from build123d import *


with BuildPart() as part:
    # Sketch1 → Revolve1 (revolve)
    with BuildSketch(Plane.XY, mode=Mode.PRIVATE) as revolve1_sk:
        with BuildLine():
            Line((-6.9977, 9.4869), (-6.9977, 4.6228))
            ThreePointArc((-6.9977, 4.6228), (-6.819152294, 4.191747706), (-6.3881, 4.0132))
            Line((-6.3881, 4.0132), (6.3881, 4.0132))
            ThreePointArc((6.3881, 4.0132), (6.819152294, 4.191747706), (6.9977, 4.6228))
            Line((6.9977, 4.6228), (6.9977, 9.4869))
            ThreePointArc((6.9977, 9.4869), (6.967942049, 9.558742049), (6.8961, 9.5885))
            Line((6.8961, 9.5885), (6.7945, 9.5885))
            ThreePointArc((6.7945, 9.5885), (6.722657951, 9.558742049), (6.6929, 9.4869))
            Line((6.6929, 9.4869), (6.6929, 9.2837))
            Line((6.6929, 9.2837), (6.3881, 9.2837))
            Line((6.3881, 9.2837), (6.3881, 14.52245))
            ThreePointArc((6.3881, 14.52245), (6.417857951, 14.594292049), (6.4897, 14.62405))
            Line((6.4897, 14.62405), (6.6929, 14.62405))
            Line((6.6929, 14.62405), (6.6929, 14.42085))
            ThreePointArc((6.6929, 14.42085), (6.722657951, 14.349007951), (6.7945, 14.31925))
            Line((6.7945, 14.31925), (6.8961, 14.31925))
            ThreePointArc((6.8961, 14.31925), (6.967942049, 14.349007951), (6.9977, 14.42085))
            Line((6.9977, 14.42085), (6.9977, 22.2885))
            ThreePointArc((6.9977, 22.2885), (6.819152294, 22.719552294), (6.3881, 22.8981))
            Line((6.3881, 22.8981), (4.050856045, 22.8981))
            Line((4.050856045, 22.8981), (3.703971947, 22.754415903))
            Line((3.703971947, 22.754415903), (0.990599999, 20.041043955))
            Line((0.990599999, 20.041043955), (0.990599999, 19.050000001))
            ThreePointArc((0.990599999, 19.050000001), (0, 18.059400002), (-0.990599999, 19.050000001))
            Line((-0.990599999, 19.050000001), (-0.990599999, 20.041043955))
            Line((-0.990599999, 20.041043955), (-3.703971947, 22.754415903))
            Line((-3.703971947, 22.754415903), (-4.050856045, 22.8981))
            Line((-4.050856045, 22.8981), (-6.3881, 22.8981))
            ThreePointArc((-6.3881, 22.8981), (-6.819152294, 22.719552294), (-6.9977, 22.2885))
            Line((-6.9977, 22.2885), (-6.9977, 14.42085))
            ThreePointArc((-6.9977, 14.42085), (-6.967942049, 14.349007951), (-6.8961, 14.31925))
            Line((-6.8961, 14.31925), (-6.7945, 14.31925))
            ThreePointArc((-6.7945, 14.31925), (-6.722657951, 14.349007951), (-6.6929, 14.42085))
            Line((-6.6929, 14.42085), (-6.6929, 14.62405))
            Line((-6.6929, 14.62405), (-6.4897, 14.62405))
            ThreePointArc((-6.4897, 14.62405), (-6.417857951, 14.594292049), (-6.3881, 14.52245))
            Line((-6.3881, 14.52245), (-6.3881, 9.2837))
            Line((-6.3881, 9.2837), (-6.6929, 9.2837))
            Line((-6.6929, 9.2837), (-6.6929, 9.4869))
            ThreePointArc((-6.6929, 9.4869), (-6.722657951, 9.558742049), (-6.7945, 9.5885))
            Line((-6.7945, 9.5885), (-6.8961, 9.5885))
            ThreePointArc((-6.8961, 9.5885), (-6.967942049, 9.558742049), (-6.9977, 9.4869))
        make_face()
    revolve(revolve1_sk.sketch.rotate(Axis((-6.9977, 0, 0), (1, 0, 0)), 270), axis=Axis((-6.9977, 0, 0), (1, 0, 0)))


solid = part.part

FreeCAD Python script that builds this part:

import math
import FreeCAD as App
import Part
import Sketcher

V = App.Vector
Q = App.Units.Quantity

doc = App.newDocument("Part")
body = doc.addObject("PartDesign::Body", "Body")

# Sketch on XY plane
sketch1 = body.newObject("Sketcher::SketchObject", "Sketch")
sketch1.AttachmentSupport = (doc.getObject("XY_Plane"), [""])
sketch1.MapMode = "FlatFace"
sketch1.addGeometry(Part.LineSegment(V(-7, 9.49, 0), V(-7, 4.62, 0)), False)
sketch1.addGeometry(Part.ArcOfCircle(Part.Circle(V(-6.39, 4.62, 0), V(0, 0, 1), 0.61), math.radians(180), math.radians(270)), False)
sketch1.addGeometry(Part.LineSegment(V(-6.39, 4.01, 0), V(6.39, 4.01, 0)), False)
sketch1.addGeometry(Part.ArcOfCircle(Part.Circle(V(6.39, 4.62, 0), V(0, 0, 1), 0.61), math.radians(-90), math.radians(0)), False)
sketch1.addGeometry(Part.LineSegment(V(7, 4.62, 0), V(7, 9.49, 0)), False)
sketch1.addGeometry(Part.ArcOfCircle(Part.Circle(V(6.9, 9.49, 0), V(0, 0, 1), 0.1), math.radians(0), math.radians(90)), False)
sketch1.addGeometry(Part.LineSegment(V(6.9, 9.59, 0), V(6.79, 9.59, 0)), False)
sketch1.addGeometry(Part.ArcOfCircle(Part.Circle(V(6.79, 9.49, 0), V(0, 0, 1), 0.1), math.radians(90), math.radians(180)), False)
sketch1.addGeometry(Part.LineSegment(V(6.69, 9.49, 0), V(6.69, 9.28, 0)), False)
sketch1.addGeometry(Part.LineSegment(V(6.69, 9.28, 0), V(6.39, 9.28, 0)), False)
sketch1.addGeometry(Part.LineSegment(V(6.39, 9.28, 0), V(6.39, 14.52, 0)), False)
sketch1.addGeometry(Part.ArcOfCircle(Part.Circle(V(6.49, 14.52, 0), V(0, 0, 1), 0.1), math.radians(90), math.radians(180)), False)
sketch1.addGeometry(Part.LineSegment(V(6.49, 14.62, 0), V(6.69, 14.62, 0)), False)
sketch1.addGeometry(Part.LineSegment(V(6.69, 14.62, 0), V(6.69, 14.42, 0)), False)
sketch1.addGeometry(Part.ArcOfCircle(Part.Circle(V(6.79, 14.42, 0), V(0, 0, 1), 0.1), math.radians(180), math.radians(270)), False)
sketch1.addGeometry(Part.LineSegment(V(6.79, 14.32, 0), V(6.9, 14.32, 0)), False)
sketch1.addGeometry(Part.ArcOfCircle(Part.Circle(V(6.9, 14.42, 0), V(0, 0, 1), 0.1), math.radians(-90), math.radians(0)), False)
sketch1.addGeometry(Part.LineSegment(V(7, 14.42, 0), V(7, 22.29, 0)), False)
sketch1.addGeometry(Part.ArcOfCircle(Part.Circle(V(6.39, 22.29, 0), V(0, 0, 1), 0.61), math.radians(0), math.radians(90)), False)
sketch1.addGeometry(Part.LineSegment(V(6.39, 22.9, 0), V(4.05, 22.9, 0)), False)
sketch1.addGeometry(Part.LineSegment(V(4.05, 22.9, 0), V(3.7, 22.75, 0)), False)
sketch1.addGeometry(Part.LineSegment(V(3.7, 22.75, 0), V(0.99, 20.04, 0)), False)
sketch1.addGeometry(Part.LineSegment(V(0.99, 20.04, 0), V(0.99, 19.05, 0)), False)
sketch1.addGeometry(Part.ArcOfCircle(Part.Circle(V(0, 19.05, 0), V(0, 0, 1), 0.99), math.radians(180), math.radians(360)), False)
sketch1.addGeometry(Part.LineSegment(V(-0.99, 19.05, 0), V(-0.99, 20.04, 0)), False)
sketch1.addGeometry(Part.LineSegment(V(-0.99, 20.04, 0), V(-3.7, 22.75, 0)), False)
sketch1.addGeometry(Part.LineSegment(V(-3.7, 22.75, 0), V(-4.05, 22.9, 0)), False)
sketch1.addGeometry(Part.LineSegment(V(-4.05, 22.9, 0), V(-6.39, 22.9, 0)), False)
sketch1.addGeometry(Part.ArcOfCircle(Part.Circle(V(-6.39, 22.29, 0), V(0, 0, 1), 0.61), math.radians(90), math.radians(180)), False)
sketch1.addGeometry(Part.LineSegment(V(-7, 22.29, 0), V(-7, 14.42, 0)), False)
sketch1.addGeometry(Part.ArcOfCircle(Part.Circle(V(-6.9, 14.42, 0), V(0, 0, 1), 0.1), math.radians(180), math.radians(270)), False)
sketch1.addGeometry(Part.LineSegment(V(-6.9, 14.32, 0), V(-6.79, 14.32, 0)), False)
sketch1.addGeometry(Part.ArcOfCircle(Part.Circle(V(-6.79, 14.42, 0), V(0, 0, 1), 0.1), math.radians(-90), math.radians(0)), False)
sketch1.addGeometry(Part.LineSegment(V(-6.69, 14.42, 0), V(-6.69, 14.62, 0)), False)
sketch1.addGeometry(Part.LineSegment(V(-6.69, 14.62, 0), V(-6.49, 14.62, 0)), False)
sketch1.addGeometry(Part.ArcOfCircle(Part.Circle(V(-6.49, 14.52, 0), V(0, 0, 1), 0.1), math.radians(0), math.radians(90)), False)
sketch1.addGeometry(Part.LineSegment(V(-6.39, 14.52, 0), V(-6.39, 9.28, 0)), False)
sketch1.addGeometry(Part.LineSegment(V(-6.39, 9.28, 0), V(-6.69, 9.28, 0)), False)
sketch1.addGeometry(Part.LineSegment(V(-6.69, 9.28, 0), V(-6.69, 9.49, 0)), False)
sketch1.addGeometry(Part.ArcOfCircle(Part.Circle(V(-6.79, 9.49, 0), V(0, 0, 1), 0.1), math.radians(0), math.radians(90)), False)
sketch1.addGeometry(Part.LineSegment(V(-6.79, 9.59, 0), V(-6.9, 9.59, 0)), False)
sketch1.addGeometry(Part.ArcOfCircle(Part.Circle(V(-6.9, 9.49, 0), V(0, 0, 1), 0.1), math.radians(90), math.radians(180)), False)
sketch1.addConstraint(Sketcher.Constraint("Tangent", 0, 2, 1, 1))
sketch1.addConstraint(Sketcher.Constraint("Tangent", 1, 2, 2, 1))
sketch1.addConstraint(Sketcher.Constraint("Tangent", 2, 2, 3, 1))
sketch1.addConstraint(Sketcher.Constraint("Tangent", 3, 2, 4, 1))
sketch1.addConstraint(Sketcher.Constraint("Tangent", 4, 2, 5, 1))
sketch1.addConstraint(Sketcher.Constraint("Tangent", 5, 2, 6, 1))
sketch1.addConstraint(Sketcher.Constraint("Tangent", 6, 2, 7, 1))
sketch1.addConstraint(Sketcher.Constraint("Tangent", 7, 2, 8, 1))
sketch1.addConstraint(Sketcher.Constraint("Coincident", 8, 2, 9, 1))
sketch1.addConstraint(Sketcher.Constraint("Coincident", 9, 2, 10, 1))
sketch1.addConstraint(Sketcher.Constraint("Tangent", 10, 2, 11, 2))
sketch1.addConstraint(Sketcher.Constraint("Tangent", 11, 1, 12, 1))
sketch1.addConstraint(Sketcher.Constraint("Coincident", 12, 2, 13, 1))
sketch1.addConstraint(Sketcher.Constraint("Tangent", 13, 2, 14, 1))
sketch1.addConstraint(Sketcher.Constraint("Tangent", 14, 2, 15, 1))
sketch1.addConstraint(Sketcher.Constraint("Tangent", 15, 2, 16, 1))
sketch1.addConstraint(Sketcher.Constraint("Tangent", 16, 2, 17, 1))
sketch1.addConstraint(Sketcher.Constraint("Tangent", 17, 2, 18, 1))
sketch1.addConstraint(Sketcher.Constraint("Tangent", 18, 2, 19, 1))
sketch1.addConstraint(Sketcher.Constraint("Coincident", 19, 2, 20, 1))
sketch1.addConstraint(Sketcher.Constraint("Coincident", 20, 2, 21, 1))
sketch1.addConstraint(Sketcher.Constraint("Coincident", 21, 2, 22, 1))
sketch1.addConstraint(Sketcher.Constraint("Tangent", 22, 2, 23, 2))
sketch1.addConstraint(Sketcher.Constraint("Tangent", 23, 1, 24, 1))
sketch1.addConstraint(Sketcher.Constraint("Coincident", 24, 2, 25, 1))
sketch1.addConstraint(Sketcher.Constraint("Coincident", 25, 2, 26, 1))
sketch1.addConstraint(Sketcher.Constraint("Coincident", 26, 2, 27, 1))
sketch1.addConstraint(Sketcher.Constraint("Tangent", 27, 2, 28, 1))
sketch1.addConstraint(Sketcher.Constraint("Tangent", 28, 2, 29, 1))
sketch1.addConstraint(Sketcher.Constraint("Tangent", 29, 2, 30, 1))
sketch1.addConstraint(Sketcher.Constraint("Tangent", 30, 2, 31, 1))
sketch1.addConstraint(Sketcher.Constraint("Tangent", 31, 2, 32, 1))
sketch1.addConstraint(Sketcher.Constraint("Tangent", 32, 2, 33, 1))
sketch1.addConstraint(Sketcher.Constraint("Coincident", 33, 2, 34, 1))
sketch1.addConstraint(Sketcher.Constraint("Tangent", 34, 2, 35, 2))
sketch1.addConstraint(Sketcher.Constraint("Tangent", 35, 1, 36, 1))
sketch1.addConstraint(Sketcher.Constraint("Coincident", 36, 2, 37, 1))
sketch1.addConstraint(Sketcher.Constraint("Coincident", 37, 2, 38, 1))
sketch1.addConstraint(Sketcher.Constraint("Tangent", 38, 2, 39, 1))
sketch1.addConstraint(Sketcher.Constraint("Tangent", 39, 2, 40, 1))
sketch1.addConstraint(Sketcher.Constraint("Tangent", 40, 2, 41, 1))
sketch1.addConstraint(Sketcher.Constraint("Tangent", 41, 2, 0, 1))
sketch1.addConstraint(Sketcher.Constraint("Vertical", 0))
sketch1.addConstraint(Sketcher.Constraint("Horizontal", 2))
sketch1.addConstraint(Sketcher.Constraint("Vertical", 4))
sketch1.addConstraint(Sketcher.Constraint("Horizontal", 6))
sketch1.addConstraint(Sketcher.Constraint("Vertical", 8))
sketch1.addConstraint(Sketcher.Constraint("Horizontal", 9))
sketch1.addConstraint(Sketcher.Constraint("Vertical", 10))
sketch1.addConstraint(Sketcher.Constraint("Horizontal", 12))
sketch1.addConstraint(Sketcher.Constraint("Vertical", 13))
sketch1.addConstraint(Sketcher.Constraint("Horizontal", 15))
sketch1.addConstraint(Sketcher.Constraint("Vertical", 17))
sketch1.addConstraint(Sketcher.Constraint("Horizontal", 19))
sketch1.addConstraint(Sketcher.Constraint("Vertical", 22))
sketch1.addConstraint(Sketcher.Constraint("Vertical", 24))
sketch1.addConstraint(Sketcher.Constraint("Horizontal", 27))
sketch1.addConstraint(Sketcher.Constraint("Vertical", 29))
sketch1.addConstraint(Sketcher.Constraint("Horizontal", 31))
sketch1.addConstraint(Sketcher.Constraint("Vertical", 33))
sketch1.addConstraint(Sketcher.Constraint("Horizontal", 34))
sketch1.addConstraint(Sketcher.Constraint("Vertical", 36))
sketch1.addConstraint(Sketcher.Constraint("Horizontal", 37))
sketch1.addConstraint(Sketcher.Constraint("Vertical", 38))
sketch1.addConstraint(Sketcher.Constraint("Horizontal", 40))
sketch1.addConstraint(Sketcher.Constraint("Equal", 1, 3))
sketch1.addConstraint(Sketcher.Constraint("Equal", 5, 7))
sketch1.addConstraint(Sketcher.Constraint("Equal", 7, 11))
sketch1.addConstraint(Sketcher.Constraint("Equal", 11, 14))
sketch1.addConstraint(Sketcher.Constraint("Equal", 14, 16))
sketch1.addConstraint(Sketcher.Constraint("Equal", 3, 18))
sketch1.addConstraint(Sketcher.Constraint("Equal", 18, 28))
sketch1.addConstraint(Sketcher.Constraint("Equal", 16, 30))
sketch1.addConstraint(Sketcher.Constraint("Equal", 30, 32))
sketch1.addConstraint(Sketcher.Constraint("Equal", 32, 35))
sketch1.addConstraint(Sketcher.Constraint("Equal", 35, 39))
sketch1.addConstraint(Sketcher.Constraint("Equal", 39, 41))
sketch1.addConstraint(Sketcher.Constraint("Symmetric", 18, 3, 28, 3, -2))
sketch1.addConstraint(Sketcher.Constraint("Symmetric", 14, 3, 32, 3, -2))
sketch1.addConstraint(Sketcher.Constraint("Symmetric", 11, 3, 35, 3, -2))
sketch1.addConstraint(Sketcher.Constraint("Symmetric", 7, 3, 39, 3, -2))
sketch1.addConstraint(Sketcher.Constraint("Symmetric", 21, 2, 24, 2, -2))
sketch1.addConstraint(Sketcher.Constraint("Symmetric", 20, 2, 25, 2, -2))
sketch1.addConstraint(Sketcher.Constraint("Perpendicular", 21, 25))
sketch1.addConstraint(Sketcher.Constraint("Horizontal", 9, 2, 36, 2))
sketch1.addConstraint(Sketcher.Constraint("Vertical", 7, 3, 14, 3))
sketch1.addConstraint(Sketcher.Constraint("Vertical", 5, 3, 16, 3))
sketch1.addConstraint(Sketcher.Constraint("Vertical", 1, 3, 28, 3))
sketch1.addConstraint(Sketcher.Constraint("Vertical", 2, 2, 9, 2))
sketch1.addConstraint(Sketcher.Constraint("Equal", 19, 27))
sketch1.addConstraint(Sketcher.Constraint("Equal", 34, 8))
sketch1.addConstraint(Sketcher.Constraint("Equal", 8, 13))
sketch1.addConstraint(Sketcher.Constraint("Radius", 1, Q("0.024 in")))
sketch1.addConstraint(Sketcher.Constraint("Radius", 5, Q("0.004 in")))
sketch1.addConstraint(Sketcher.Constraint("Radius", 23, Q("0.039 in")))
sketch1.addConstraint(Sketcher.Constraint("Angle", 20, Q("-157.5 deg")))
sketch1.addConstraint(Sketcher.Constraint("DistanceX", 2, 1, 2, 2, Q("0.503 in")))
sketch1.addConstraint(Sketcher.Constraint("DistanceX", 6, 2, 6, 1, Q("0.004 in")))
sketch1.addConstraint(Sketcher.Constraint("DistanceY", -1, 1, 23, 3, Q("0.75 in")))
sketch1.addConstraint(Sketcher.Constraint("DistanceY", 0, 2, 0, 1, Q("0.1915 in")))
sketch1.addConstraint(Sketcher.Constraint("DistanceY", -1, 1, 1, 3, Q("0.182 in")))
sketch1.addConstraint(Sketcher.Constraint("DistanceY", 7, 3, 18, 3, Q("0.504 in")))
sketch1.addConstraint(Sketcher.Constraint("DistanceY", 10, 1, 10, 2, 5.23875))
sketch1.addConstraint(Sketcher.Constraint("DistanceX", 19, 2, 19, 1, 2.337244))
sketch1.addConstraint(Sketcher.Constraint("DistanceY", 22, 2, 22, 1, 0.991044))
revolution = body.newObject("PartDesign::Revolution", "Revolution")
revolution.Profile = sketch1
revolution.ReferenceAxis = (sketch1, ["H_Axis"])
revolution.Angle = 360

doc.recompute()
